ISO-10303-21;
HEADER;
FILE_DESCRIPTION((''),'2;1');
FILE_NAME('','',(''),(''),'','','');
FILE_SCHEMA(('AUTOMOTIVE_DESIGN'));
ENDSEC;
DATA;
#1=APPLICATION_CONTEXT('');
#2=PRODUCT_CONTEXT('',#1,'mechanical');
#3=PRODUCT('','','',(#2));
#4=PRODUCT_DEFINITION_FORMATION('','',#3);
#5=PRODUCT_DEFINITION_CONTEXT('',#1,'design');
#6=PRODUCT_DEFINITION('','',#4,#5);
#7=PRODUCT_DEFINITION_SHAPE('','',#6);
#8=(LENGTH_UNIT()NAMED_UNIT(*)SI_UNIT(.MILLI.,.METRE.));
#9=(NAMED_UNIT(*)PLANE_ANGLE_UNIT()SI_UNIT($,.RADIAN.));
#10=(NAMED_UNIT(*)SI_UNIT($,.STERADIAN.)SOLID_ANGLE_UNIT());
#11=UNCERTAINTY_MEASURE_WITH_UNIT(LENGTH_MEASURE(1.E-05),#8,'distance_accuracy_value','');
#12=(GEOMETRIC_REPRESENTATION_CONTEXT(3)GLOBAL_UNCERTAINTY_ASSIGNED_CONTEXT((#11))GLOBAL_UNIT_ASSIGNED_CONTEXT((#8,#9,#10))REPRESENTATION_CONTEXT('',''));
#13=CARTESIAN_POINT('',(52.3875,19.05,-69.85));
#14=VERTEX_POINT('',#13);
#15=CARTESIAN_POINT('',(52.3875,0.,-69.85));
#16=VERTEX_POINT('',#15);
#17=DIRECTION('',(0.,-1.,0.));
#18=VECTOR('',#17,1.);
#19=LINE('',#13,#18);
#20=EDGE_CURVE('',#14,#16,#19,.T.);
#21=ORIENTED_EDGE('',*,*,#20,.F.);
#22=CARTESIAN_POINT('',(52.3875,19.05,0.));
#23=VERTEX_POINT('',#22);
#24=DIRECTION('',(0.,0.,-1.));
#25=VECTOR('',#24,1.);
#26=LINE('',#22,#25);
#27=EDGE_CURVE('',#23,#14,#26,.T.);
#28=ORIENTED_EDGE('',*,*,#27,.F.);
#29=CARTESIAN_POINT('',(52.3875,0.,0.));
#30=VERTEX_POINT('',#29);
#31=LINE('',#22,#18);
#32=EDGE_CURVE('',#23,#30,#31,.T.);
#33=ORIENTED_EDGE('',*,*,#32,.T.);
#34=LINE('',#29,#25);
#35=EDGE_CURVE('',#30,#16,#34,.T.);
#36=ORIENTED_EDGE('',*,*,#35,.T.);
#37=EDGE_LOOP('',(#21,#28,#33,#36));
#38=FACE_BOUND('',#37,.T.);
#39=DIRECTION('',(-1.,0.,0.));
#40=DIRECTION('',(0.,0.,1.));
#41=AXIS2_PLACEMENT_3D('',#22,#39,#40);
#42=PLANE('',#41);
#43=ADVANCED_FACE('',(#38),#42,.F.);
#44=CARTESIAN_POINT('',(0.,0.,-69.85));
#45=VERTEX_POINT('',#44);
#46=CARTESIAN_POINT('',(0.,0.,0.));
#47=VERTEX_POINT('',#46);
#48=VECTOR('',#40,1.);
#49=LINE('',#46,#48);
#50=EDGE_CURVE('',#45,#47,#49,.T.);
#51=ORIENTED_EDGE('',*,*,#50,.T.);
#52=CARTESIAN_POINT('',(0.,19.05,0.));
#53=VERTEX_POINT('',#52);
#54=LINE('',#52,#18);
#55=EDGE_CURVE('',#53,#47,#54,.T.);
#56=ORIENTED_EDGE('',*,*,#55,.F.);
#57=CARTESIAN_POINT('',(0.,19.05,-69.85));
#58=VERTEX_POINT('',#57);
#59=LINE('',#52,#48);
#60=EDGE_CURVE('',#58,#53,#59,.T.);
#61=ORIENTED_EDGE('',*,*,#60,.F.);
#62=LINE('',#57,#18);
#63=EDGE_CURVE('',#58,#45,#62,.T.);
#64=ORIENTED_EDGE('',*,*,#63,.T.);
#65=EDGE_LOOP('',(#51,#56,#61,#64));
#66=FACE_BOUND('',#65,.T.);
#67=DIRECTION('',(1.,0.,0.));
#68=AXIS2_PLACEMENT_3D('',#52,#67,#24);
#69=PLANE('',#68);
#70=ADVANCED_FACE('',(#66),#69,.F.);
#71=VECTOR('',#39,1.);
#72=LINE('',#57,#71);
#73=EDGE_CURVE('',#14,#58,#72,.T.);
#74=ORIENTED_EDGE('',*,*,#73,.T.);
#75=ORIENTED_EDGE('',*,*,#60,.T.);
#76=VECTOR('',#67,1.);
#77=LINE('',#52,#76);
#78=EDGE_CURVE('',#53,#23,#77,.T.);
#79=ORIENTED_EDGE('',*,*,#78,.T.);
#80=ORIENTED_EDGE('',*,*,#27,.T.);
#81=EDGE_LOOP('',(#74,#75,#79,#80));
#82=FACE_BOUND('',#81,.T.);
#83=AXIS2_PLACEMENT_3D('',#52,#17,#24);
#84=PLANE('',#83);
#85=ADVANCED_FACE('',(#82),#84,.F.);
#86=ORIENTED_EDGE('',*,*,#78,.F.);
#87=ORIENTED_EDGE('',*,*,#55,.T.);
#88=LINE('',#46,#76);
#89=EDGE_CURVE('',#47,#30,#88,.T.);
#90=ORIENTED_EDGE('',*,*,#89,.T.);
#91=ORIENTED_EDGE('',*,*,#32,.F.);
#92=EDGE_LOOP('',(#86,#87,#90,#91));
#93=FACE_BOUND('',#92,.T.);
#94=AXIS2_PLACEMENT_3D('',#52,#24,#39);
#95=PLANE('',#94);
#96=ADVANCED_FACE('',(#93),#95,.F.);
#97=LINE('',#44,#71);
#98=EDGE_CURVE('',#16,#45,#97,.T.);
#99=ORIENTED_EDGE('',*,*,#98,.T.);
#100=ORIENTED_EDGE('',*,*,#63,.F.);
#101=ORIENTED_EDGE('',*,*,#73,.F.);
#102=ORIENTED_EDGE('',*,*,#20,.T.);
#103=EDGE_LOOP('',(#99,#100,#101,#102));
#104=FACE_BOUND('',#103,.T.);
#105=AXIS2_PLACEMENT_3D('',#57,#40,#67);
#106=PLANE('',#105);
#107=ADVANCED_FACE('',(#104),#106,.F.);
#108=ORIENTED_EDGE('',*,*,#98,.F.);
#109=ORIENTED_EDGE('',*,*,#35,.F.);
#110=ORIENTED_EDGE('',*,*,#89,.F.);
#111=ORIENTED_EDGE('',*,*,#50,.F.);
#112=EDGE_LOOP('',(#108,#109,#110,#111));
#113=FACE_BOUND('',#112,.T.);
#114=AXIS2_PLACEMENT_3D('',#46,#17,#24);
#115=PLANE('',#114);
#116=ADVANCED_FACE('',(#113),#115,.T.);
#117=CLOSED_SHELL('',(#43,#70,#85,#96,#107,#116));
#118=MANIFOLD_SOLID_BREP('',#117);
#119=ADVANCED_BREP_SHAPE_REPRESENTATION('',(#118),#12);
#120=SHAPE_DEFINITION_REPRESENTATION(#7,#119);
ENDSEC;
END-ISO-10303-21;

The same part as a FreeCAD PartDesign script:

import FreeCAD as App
import Part
import Sketcher
from FreeCAD import Vector
Q = App.Units.Quantity


def add_polygon(sketch, points):
    """Adds a closed chain of lines whose ends are joined by coincident constraints."""
    first, n = sketch.GeometryCount, len(points)
    for a, b in zip(points, points[1:] + points[:1]):
        sketch.addGeometry(Part.LineSegment(App.Vector(*a, 0), App.Vector(*b, 0)), False)
    for i in range(n):
        sketch.addConstraint(Sketcher.Constraint("Coincident", first + i, 2, first + (i + 1) % n, 1))

doc = App.newDocument("Part")
body = doc.addObject("PartDesign::Body", "Body")

# Sketch on XZ plane
sketch1 = doc.addObject("Sketcher::SketchObject", "Sketch")
body.addObject(sketch1)
sketch1.AttachmentSupport = (doc.XZ_Plane, [""])
sketch1.MapMode = "FlatFace"
add_polygon(sketch1, [(0, -70), (0, 0), (52, 0), (52, -70)])  # lines 0-3
sketch1.addConstraint(Sketcher.Constraint("Vertical", 0))
sketch1.addConstraint(Sketcher.Constraint("Horizontal", 1))
sketch1.addConstraint(Sketcher.Constraint("Vertical", 2))
sketch1.addConstraint(Sketcher.Constraint("Horizontal", 3))
sketch1.addConstraint(Sketcher.Constraint("Coincident", 0, 2, -1, 1))
sketch1.addConstraint(Sketcher.Constraint("DistanceY", 0, 1, 0, 2, Q("2.75 in")))
sketch1.addConstraint(Sketcher.Constraint("DistanceX", 1, 1, 1, 2, Q("2.0625 in")))
pad1 = doc.addObject("PartDesign::Pad", "Pad")
body.addObject(pad1)
pad1.Profile = sketch1
pad1.Length = Q("0.75 in")
pad1.Reversed = True

doc.recompute()
